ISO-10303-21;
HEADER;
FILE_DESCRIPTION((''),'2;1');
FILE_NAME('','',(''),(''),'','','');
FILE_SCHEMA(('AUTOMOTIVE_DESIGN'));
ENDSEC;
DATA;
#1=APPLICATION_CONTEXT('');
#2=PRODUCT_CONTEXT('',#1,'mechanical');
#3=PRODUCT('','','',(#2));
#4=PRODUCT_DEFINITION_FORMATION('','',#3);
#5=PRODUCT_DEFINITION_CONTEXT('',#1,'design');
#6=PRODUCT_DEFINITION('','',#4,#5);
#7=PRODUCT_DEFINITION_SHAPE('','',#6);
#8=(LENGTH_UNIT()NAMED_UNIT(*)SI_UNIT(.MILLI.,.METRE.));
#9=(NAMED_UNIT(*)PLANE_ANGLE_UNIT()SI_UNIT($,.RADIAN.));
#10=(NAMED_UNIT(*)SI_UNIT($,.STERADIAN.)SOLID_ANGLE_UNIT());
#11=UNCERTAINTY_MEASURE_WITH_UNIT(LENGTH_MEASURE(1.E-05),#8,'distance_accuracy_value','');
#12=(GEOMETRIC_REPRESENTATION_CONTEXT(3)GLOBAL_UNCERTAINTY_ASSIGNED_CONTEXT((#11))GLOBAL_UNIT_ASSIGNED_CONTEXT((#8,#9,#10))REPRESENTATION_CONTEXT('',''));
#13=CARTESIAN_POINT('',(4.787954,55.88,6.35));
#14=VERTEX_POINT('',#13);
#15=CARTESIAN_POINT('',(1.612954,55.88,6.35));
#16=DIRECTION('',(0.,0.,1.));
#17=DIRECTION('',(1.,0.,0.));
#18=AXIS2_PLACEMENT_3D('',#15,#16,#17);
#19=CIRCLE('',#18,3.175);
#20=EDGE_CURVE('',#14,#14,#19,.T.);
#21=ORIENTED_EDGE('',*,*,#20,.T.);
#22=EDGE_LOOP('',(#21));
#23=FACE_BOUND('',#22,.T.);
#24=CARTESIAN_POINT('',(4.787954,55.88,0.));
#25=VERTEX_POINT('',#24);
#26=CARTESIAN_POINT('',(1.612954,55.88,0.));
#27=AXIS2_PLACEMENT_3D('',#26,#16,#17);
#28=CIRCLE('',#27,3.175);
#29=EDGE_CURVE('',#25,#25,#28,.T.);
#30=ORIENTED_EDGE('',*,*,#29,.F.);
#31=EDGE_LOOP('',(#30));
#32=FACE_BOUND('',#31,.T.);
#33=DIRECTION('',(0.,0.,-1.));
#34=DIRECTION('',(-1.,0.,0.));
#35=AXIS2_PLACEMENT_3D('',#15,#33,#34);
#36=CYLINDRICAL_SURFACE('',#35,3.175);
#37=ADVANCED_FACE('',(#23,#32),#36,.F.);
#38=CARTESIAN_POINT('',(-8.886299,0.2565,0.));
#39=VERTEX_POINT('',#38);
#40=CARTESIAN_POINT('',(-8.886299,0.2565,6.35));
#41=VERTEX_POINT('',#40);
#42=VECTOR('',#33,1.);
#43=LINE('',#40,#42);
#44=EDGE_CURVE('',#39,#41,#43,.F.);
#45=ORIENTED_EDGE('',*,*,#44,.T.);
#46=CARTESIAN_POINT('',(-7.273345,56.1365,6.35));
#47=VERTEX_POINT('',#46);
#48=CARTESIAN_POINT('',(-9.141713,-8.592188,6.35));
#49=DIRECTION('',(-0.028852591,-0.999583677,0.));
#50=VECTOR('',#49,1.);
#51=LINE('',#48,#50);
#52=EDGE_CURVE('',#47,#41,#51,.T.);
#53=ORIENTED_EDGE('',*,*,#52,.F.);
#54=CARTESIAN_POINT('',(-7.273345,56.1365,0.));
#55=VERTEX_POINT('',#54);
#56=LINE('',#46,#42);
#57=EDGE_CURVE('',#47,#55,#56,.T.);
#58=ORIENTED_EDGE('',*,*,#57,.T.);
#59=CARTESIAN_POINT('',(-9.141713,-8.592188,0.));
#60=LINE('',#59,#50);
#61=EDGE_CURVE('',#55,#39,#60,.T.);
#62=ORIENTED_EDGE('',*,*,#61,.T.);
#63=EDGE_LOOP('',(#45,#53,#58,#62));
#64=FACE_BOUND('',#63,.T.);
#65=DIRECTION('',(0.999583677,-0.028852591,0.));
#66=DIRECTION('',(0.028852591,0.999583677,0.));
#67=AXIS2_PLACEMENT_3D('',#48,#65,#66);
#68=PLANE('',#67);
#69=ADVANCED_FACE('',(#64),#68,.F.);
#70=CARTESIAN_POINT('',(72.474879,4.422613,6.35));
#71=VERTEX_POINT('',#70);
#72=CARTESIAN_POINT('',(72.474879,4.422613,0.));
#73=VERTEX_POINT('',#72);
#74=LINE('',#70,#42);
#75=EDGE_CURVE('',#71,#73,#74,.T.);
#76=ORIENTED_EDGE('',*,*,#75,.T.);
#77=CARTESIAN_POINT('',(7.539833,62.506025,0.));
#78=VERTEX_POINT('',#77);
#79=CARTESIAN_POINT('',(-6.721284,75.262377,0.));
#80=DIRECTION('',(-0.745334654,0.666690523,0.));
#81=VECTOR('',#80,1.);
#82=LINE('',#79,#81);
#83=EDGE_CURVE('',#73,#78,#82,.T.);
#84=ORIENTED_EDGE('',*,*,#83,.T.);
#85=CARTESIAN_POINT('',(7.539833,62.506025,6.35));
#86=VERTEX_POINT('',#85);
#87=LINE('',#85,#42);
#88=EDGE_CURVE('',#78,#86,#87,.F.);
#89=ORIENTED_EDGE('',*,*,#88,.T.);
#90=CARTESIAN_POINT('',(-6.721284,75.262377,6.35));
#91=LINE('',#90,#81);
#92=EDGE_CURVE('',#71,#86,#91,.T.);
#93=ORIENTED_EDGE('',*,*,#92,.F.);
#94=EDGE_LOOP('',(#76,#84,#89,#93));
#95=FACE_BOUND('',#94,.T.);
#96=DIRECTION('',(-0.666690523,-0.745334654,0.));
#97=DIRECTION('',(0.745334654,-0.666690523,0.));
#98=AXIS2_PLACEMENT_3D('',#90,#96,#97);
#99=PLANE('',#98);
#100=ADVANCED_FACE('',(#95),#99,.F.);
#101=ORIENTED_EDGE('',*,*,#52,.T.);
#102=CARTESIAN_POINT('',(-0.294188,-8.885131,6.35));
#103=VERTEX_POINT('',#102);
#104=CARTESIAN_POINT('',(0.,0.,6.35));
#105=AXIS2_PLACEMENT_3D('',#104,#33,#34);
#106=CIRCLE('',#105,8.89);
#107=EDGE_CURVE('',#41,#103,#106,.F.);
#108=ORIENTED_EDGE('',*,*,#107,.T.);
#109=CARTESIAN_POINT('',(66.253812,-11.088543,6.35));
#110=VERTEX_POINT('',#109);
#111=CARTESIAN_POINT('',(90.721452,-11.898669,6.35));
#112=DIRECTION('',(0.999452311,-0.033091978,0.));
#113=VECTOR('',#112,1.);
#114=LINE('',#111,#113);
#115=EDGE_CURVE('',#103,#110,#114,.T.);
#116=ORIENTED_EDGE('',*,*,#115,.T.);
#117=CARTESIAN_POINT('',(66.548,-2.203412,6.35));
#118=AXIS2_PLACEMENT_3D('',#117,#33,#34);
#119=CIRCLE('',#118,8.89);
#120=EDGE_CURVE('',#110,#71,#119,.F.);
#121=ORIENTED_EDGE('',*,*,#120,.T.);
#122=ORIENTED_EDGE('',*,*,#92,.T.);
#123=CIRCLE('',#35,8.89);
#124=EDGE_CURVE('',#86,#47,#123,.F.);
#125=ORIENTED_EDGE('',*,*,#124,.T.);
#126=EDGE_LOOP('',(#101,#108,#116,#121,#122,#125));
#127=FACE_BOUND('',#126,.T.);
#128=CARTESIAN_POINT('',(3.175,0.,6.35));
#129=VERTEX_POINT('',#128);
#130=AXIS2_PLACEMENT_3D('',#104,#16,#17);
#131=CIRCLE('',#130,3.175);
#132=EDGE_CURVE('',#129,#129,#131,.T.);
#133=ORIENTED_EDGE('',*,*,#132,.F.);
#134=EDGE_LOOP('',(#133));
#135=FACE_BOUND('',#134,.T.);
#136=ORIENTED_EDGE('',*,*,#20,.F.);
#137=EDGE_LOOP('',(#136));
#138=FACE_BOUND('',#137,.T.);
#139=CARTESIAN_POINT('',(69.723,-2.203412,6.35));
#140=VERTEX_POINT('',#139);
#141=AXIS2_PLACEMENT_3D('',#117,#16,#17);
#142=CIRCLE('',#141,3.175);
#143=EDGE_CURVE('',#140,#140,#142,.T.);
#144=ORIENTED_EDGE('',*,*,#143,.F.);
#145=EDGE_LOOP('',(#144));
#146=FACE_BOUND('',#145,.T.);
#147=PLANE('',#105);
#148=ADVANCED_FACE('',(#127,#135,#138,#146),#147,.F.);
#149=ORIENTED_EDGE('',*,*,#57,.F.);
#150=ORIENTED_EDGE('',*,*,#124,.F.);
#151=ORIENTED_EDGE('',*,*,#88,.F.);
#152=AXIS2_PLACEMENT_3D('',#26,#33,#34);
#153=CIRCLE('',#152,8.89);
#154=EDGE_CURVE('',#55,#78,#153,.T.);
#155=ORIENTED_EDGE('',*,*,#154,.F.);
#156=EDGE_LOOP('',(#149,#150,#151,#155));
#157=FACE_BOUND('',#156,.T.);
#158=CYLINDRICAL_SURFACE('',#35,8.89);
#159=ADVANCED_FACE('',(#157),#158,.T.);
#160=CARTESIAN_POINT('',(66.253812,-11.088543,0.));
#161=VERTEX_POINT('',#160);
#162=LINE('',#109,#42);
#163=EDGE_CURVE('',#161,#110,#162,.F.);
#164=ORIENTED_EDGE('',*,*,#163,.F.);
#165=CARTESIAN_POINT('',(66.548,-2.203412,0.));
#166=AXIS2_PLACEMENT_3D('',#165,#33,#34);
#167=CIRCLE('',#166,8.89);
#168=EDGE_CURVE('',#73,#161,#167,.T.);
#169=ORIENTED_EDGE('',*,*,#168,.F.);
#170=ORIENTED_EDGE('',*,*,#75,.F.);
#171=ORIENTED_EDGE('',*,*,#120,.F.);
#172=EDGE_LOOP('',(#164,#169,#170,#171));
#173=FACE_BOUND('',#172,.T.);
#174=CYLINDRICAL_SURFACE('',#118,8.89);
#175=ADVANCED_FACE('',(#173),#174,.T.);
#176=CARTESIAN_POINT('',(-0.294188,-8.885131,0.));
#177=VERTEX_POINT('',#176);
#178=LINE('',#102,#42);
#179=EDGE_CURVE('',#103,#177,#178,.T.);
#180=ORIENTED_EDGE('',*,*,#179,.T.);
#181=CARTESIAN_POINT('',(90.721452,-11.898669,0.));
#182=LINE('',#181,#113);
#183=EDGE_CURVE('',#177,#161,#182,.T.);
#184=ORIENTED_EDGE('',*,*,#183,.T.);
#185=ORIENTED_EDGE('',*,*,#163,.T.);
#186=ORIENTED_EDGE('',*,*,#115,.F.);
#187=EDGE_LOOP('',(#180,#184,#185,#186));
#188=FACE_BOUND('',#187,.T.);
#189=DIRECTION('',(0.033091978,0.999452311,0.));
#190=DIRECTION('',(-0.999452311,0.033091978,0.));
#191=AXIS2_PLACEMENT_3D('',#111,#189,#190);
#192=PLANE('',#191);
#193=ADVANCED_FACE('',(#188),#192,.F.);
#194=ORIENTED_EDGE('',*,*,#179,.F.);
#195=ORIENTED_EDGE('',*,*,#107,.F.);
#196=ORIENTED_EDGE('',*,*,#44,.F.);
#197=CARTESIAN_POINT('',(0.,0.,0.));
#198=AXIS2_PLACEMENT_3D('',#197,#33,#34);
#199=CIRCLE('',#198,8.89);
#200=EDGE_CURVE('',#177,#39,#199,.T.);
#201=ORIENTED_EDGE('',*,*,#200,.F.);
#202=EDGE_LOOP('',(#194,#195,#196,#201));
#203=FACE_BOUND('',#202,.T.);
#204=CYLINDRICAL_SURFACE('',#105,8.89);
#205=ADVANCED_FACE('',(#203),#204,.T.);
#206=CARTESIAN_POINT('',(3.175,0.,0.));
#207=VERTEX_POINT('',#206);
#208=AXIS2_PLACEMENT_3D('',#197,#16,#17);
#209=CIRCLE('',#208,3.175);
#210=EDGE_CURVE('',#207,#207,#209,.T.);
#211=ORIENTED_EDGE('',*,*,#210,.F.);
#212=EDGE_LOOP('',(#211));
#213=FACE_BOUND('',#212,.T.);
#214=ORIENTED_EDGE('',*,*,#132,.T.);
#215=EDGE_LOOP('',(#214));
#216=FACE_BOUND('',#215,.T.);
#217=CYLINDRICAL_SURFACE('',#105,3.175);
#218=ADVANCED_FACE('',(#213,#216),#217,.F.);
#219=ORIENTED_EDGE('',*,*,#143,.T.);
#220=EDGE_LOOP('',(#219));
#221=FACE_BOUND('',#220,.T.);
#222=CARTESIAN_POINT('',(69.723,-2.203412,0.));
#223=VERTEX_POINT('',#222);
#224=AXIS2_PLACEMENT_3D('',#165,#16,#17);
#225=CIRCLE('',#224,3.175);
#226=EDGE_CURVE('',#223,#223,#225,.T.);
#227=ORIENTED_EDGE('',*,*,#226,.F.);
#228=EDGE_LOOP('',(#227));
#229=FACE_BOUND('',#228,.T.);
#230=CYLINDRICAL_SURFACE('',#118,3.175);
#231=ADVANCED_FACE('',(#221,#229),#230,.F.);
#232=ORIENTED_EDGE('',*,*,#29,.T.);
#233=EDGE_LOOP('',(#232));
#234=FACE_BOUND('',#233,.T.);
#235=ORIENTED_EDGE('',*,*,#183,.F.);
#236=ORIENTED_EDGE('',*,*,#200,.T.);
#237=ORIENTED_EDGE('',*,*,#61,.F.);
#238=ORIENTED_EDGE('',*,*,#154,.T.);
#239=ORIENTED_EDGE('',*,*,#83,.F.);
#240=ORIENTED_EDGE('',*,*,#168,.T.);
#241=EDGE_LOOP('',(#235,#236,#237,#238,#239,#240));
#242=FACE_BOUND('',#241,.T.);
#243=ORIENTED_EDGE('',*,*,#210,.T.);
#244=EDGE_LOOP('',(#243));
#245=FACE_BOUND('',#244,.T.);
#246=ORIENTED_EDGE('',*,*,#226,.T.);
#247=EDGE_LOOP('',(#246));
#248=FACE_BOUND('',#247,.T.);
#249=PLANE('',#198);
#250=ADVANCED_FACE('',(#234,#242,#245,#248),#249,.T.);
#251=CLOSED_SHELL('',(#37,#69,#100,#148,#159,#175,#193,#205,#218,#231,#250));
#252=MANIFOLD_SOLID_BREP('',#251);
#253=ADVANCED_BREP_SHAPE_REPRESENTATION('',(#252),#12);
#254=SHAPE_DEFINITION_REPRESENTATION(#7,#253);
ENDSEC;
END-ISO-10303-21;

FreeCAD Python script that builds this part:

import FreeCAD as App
import Part
import Sketcher
Q = App.Units.Quantity


def edges_at(feature, points):
    """Names of the edges that pass closest to the given points."""
    edges = feature.Shape.Edges
    near = lambda p: min(range(len(edges)), key=lambda i: edges[i].distToShape(Part.Vertex(*p))[0])
    return sorted({f"Edge{near(p) + 1}" for p in points})

doc = App.newDocument("Part")
body = doc.addObject("PartDesign::Body", "Body")

sketch1 = body.newObject("Sketcher::SketchObject", "Sketch")
sketch1.AttachmentSupport = (doc.getObject("XY_Plane"), [""])
sketch1.MapMode = "FlatFace"
sketch1.addGeometry([
    Part.LineSegment(App.Vector(-6.7, 75.3, 0), App.Vector(-9.1, -8.6, 0)),
    Part.LineSegment(App.Vector(-9.1, -8.6, 0), App.Vector(90.7, -11.9, 0)),
    Part.LineSegment(App.Vector(90.7, -11.9, 0), App.Vector(-6.7, 75.3, 0)),
    Part.Circle(App.Vector(66.5, -2.2, 0), App.Vector(0, 0, 1), 3.2),
    Part.Circle(App.Vector(0, 0, 0), App.Vector(0, 0, 1), 3.2),
    Part.Circle(App.Vector(1.6, 55.9, 0), App.Vector(0, 0, 1), 3.2),
], False)
sketch1.addConstraint([
    Sketcher.Constraint("Coincident", 0, 2, 1, 1),
    Sketcher.Constraint("Coincident", 1, 2, 2, 1),
    Sketcher.Constraint("Coincident", 2, 2, 0, 1),
    Sketcher.Constraint("Coincident", 4, 3, -1, 1),
    Sketcher.Constraint("Equal", 3, 4),
    Sketcher.Constraint("Equal", 4, 5),
    Sketcher.Constraint("Diameter", 3, Q("0.25 in")),
    Sketcher.Constraint("DistanceY", -1, 1, 5, 3, Q("2.2 in")),
    Sketcher.Constraint("DistanceX", -1, 1, 3, 3, Q("2.62 in")),
    Sketcher.Constraint("Distance", 0, 83.889491),
    Sketcher.Constraint("Distance", 1, 99.917889),
    Sketcher.Constraint("Distance", 2, 130.736891),
    Sketcher.Constraint("DistanceY", 3, 3, -1, 1, 2.203412),
    Sketcher.Constraint("DistanceY", 0, 2, -1, 1, 8.592188),
    Sketcher.Constraint("DistanceX", -1, 1, 1, 2, 90.721452),
    Sketcher.Constraint("DistanceY", 1, 2, -1, 1, 11.898669),
    Sketcher.Constraint("DistanceX", -1, 1, 5, 3, 1.612954),
])
pad1 = body.newObject("PartDesign::Pad", "Pad")
pad1.Profile = sketch1
pad1.Length = Q("0.25 in")
doc.recompute()

fillet = body.newObject("PartDesign::Fillet", "Fillet")
fillet.Base = (pad1, edges_at(pad1, [(-9.142, -8.592, 3.175), (-6.721, 75.262, 3.175), (90.721, -11.899, 3.175)]))
fillet.Radius = Q("0.35 in")

doc.recompute()
